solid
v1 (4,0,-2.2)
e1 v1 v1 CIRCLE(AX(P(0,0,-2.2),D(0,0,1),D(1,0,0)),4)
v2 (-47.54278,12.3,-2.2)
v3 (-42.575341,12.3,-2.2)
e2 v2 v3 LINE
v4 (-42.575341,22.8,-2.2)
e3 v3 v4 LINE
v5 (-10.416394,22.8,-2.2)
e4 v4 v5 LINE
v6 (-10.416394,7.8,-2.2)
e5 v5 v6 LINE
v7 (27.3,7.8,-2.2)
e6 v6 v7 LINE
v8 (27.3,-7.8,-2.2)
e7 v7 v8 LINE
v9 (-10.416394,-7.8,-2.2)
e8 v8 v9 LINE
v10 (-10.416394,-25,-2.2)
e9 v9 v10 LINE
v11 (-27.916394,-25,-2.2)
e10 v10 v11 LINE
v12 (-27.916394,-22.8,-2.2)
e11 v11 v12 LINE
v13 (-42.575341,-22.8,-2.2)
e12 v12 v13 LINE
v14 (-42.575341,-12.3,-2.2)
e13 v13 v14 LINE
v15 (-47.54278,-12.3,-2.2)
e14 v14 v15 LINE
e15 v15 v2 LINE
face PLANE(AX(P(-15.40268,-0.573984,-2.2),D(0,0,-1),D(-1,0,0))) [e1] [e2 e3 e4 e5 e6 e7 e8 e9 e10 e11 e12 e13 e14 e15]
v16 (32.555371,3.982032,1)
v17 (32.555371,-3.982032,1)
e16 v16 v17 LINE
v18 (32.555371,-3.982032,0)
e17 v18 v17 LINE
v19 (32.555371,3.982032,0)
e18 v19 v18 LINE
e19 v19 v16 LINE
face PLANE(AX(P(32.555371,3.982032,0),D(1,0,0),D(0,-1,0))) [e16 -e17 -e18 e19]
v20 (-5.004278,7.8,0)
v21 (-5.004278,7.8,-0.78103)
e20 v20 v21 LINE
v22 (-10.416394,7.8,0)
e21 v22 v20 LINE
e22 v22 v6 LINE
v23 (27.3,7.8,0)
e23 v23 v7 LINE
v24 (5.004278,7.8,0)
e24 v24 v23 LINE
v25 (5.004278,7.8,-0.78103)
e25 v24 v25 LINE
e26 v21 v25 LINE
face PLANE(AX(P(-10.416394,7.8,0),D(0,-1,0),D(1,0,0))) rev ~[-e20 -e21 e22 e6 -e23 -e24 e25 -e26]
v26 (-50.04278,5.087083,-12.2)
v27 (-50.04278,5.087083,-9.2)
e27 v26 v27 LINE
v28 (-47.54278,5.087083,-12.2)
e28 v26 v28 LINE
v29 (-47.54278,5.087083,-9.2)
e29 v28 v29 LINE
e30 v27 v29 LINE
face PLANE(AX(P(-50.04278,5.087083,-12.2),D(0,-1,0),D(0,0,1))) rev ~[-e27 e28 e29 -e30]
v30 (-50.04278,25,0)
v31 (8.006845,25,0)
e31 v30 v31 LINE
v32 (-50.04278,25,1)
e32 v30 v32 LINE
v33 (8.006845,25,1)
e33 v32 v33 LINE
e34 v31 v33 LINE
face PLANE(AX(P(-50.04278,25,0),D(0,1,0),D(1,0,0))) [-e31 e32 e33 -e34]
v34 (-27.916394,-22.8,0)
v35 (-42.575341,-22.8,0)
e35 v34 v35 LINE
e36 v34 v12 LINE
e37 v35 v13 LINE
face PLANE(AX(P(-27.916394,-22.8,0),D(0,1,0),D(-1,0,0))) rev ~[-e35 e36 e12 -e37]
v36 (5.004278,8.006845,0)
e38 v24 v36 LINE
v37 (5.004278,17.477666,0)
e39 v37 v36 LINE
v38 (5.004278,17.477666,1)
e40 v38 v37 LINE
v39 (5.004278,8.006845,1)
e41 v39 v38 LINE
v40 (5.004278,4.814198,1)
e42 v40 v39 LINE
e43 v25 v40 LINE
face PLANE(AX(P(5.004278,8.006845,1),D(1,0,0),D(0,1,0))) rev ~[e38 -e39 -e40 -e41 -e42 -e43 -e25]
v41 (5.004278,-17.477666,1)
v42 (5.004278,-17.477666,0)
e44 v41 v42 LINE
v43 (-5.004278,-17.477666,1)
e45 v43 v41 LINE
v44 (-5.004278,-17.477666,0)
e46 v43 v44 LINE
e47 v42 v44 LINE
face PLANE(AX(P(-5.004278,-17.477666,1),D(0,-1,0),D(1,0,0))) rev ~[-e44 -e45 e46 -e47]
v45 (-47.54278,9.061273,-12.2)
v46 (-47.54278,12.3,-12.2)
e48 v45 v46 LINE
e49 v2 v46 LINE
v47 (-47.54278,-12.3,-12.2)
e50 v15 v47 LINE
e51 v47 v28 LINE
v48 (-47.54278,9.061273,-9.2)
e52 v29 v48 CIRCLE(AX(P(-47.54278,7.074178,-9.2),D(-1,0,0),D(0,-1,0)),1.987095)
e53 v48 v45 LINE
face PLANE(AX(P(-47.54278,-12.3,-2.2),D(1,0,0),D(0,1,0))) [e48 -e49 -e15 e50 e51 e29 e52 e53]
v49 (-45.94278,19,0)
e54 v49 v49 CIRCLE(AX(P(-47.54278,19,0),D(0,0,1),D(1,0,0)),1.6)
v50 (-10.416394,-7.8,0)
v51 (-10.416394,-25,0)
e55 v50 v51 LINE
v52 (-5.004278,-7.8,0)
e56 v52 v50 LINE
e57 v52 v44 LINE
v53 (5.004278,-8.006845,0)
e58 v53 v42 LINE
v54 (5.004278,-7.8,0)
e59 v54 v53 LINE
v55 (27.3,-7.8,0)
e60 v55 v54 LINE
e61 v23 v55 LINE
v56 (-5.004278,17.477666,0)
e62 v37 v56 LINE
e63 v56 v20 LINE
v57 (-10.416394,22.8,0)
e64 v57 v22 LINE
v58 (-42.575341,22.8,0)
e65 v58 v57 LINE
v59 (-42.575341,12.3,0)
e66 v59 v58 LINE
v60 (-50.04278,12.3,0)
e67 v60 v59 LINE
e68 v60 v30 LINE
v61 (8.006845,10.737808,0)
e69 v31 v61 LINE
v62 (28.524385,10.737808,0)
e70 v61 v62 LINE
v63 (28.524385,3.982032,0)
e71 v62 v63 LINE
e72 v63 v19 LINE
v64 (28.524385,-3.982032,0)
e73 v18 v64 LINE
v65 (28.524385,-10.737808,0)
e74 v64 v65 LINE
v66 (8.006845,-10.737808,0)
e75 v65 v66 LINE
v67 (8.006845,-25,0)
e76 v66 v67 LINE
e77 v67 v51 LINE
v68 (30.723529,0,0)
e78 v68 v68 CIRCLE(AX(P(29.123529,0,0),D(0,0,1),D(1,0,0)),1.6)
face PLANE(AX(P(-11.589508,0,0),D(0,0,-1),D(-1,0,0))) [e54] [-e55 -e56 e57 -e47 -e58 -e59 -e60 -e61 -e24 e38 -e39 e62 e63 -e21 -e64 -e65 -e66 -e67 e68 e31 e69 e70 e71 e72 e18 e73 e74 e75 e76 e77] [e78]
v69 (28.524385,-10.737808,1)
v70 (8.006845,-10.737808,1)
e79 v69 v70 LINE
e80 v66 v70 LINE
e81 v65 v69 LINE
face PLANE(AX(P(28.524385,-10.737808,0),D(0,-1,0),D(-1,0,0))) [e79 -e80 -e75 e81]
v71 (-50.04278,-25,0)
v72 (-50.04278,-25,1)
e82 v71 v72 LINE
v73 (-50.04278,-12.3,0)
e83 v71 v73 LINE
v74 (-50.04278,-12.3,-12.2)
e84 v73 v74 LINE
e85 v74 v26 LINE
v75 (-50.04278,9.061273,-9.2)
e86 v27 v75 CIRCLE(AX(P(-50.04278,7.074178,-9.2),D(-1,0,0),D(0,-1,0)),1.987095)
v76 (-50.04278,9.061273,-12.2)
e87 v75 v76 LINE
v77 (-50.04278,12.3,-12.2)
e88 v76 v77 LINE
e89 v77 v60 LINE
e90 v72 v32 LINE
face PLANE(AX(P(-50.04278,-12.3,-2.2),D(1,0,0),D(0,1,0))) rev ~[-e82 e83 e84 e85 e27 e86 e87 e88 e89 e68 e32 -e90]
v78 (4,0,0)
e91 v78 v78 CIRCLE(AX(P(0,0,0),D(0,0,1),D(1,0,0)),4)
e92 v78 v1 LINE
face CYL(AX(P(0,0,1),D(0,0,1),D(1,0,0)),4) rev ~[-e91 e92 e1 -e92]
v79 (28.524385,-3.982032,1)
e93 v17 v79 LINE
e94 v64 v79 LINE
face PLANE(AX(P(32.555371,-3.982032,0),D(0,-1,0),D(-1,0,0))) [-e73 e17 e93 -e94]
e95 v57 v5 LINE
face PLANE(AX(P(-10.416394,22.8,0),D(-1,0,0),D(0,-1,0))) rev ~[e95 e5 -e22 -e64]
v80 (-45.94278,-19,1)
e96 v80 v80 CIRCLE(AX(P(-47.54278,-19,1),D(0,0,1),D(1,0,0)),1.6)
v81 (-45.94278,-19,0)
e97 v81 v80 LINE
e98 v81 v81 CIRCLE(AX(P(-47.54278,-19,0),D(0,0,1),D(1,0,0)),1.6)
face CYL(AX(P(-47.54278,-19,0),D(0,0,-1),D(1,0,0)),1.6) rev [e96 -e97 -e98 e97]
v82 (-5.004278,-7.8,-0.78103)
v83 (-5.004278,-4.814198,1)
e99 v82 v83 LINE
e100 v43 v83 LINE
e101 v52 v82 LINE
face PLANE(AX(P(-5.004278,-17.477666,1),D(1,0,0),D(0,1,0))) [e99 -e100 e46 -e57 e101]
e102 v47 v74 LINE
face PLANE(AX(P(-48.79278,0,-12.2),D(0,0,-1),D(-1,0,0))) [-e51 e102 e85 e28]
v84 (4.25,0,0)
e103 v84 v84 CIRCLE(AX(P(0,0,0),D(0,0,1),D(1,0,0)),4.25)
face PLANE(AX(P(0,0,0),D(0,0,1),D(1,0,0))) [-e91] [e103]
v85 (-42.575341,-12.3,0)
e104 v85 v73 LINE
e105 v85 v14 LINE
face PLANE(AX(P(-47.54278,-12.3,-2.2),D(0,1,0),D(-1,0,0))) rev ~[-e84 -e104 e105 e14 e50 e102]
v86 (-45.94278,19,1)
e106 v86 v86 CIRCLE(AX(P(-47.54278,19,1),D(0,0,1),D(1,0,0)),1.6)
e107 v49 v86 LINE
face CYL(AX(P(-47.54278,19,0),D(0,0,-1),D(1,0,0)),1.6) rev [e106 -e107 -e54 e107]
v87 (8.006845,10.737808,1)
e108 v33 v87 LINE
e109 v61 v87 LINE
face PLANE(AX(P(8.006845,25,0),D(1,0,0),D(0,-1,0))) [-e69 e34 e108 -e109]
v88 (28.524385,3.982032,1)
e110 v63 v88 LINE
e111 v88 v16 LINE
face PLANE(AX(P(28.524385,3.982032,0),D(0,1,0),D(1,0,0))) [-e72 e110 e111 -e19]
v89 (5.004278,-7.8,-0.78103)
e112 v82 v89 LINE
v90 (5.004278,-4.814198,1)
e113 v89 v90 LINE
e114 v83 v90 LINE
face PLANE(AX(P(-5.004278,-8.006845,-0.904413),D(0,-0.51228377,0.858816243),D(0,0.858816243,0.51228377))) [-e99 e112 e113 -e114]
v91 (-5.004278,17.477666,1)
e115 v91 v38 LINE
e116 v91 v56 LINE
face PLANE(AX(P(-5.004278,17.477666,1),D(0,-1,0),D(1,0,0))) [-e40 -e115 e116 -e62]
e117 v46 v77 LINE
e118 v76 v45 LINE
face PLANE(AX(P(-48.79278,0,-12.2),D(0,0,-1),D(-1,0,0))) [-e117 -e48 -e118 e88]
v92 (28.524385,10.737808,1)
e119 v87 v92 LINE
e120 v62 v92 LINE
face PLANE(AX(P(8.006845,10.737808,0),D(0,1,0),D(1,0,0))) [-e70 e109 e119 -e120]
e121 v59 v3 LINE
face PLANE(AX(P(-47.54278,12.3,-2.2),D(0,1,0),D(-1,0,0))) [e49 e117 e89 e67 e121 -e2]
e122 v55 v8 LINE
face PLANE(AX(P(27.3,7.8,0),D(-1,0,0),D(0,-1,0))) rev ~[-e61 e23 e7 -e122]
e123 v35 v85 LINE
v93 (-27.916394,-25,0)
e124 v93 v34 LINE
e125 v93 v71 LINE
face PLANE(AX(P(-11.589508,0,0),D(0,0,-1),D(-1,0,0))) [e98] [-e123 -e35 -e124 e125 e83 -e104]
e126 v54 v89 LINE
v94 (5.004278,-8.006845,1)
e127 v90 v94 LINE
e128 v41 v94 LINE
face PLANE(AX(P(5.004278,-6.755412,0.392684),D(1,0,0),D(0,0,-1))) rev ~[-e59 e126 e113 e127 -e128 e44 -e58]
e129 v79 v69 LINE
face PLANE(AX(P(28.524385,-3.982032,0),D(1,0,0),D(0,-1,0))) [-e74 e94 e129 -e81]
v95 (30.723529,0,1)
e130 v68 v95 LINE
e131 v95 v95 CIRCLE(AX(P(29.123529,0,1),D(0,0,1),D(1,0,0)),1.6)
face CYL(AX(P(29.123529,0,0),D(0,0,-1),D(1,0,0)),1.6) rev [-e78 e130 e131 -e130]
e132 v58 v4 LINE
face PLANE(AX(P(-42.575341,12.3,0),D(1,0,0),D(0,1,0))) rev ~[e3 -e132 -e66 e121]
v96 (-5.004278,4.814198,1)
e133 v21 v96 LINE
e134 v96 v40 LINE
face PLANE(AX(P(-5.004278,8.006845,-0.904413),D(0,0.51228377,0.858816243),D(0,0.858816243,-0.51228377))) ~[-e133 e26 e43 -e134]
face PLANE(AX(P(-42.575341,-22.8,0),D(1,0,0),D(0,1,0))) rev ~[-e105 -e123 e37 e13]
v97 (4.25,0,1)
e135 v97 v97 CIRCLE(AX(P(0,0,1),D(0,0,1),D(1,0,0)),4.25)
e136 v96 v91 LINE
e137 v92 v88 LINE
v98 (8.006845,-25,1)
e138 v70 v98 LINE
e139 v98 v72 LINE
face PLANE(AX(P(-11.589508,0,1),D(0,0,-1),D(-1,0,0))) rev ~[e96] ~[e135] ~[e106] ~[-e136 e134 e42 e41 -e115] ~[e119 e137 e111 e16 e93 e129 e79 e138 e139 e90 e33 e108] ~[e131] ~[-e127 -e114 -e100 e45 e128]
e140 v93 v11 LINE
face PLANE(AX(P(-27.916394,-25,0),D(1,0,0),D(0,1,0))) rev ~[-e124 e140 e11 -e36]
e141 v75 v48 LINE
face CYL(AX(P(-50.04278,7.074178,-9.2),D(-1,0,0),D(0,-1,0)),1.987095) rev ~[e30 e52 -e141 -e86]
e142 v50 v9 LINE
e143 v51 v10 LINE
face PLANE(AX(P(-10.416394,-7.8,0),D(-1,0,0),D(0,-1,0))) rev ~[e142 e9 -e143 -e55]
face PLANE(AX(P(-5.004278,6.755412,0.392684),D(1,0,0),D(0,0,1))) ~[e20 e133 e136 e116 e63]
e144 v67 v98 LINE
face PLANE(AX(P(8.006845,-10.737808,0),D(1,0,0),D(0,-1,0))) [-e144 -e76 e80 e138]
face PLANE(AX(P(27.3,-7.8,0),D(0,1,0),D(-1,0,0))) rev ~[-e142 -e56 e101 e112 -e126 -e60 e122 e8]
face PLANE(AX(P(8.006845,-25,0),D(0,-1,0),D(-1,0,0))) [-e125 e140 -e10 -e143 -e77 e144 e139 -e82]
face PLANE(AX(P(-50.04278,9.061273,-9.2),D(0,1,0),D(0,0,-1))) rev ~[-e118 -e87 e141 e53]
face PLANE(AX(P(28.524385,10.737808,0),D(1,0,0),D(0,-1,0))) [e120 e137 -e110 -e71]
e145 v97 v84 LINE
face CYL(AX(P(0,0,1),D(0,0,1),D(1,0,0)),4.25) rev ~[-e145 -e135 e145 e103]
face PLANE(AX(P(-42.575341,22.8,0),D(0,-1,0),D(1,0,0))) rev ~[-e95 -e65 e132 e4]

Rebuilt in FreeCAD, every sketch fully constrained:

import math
import FreeCAD as App
import Part
import Sketcher

V = App.Vector
Q = App.Units.Quantity


def add_polygon(sketch, points):
    """Adds a closed chain of lines whose ends are joined by coincident constraints."""
    first, n = sketch.GeometryCount, len(points)
    for a, b in zip(points, points[1:] + points[:1]):
        sketch.addGeometry(Part.LineSegment(App.Vector(*a, 0), App.Vector(*b, 0)), False)
    for i in range(n):
        sketch.addConstraint(Sketcher.Constraint("Coincident", first + i, 2, first + (i + 1) % n, 1))

doc = App.newDocument("Part")
body = doc.addObject("PartDesign::Body", "Body")

# Sketch on XY plane
sketch1 = body.newObject("Sketcher::SketchObject", "Sketch")
sketch1.AttachmentSupport = (doc.getObject("XY_Plane"), [""])
sketch1.MapMode = "FlatFace"
add_polygon(sketch1, [(8, 25), (-50, 25), (-50, -25), (8, -25), (8, -10.7), (28.5, -10.7), (28.5, -4), (32.6, -4), (32.6, 4), (28.5, 4), (28.5, 10.7), (8, 10.7)])  # lines 0-11
sketch1.addGeometry(Part.Circle(V(-47.5, -19, 0), V(0, 0, 1), 1.6), False)  # 12
sketch1.addGeometry(Part.Circle(V(29.1, 0, 0), V(0, 0, 1), 1.6), False)  # 13
sketch1.addGeometry(Part.Circle(V(-47.5, 19, 0), V(0, 0, 1), 1.6), False)  # 14
sketch1.addConstraint([
    Sketcher.Constraint("Horizontal", 0),
    Sketcher.Constraint("Vertical", 1),
    Sketcher.Constraint("Horizontal", 2),
    Sketcher.Constraint("Vertical", 3),
    Sketcher.Constraint("Horizontal", 4),
    Sketcher.Constraint("Vertical", 5),
    Sketcher.Constraint("Horizontal", 6),
    Sketcher.Constraint("Vertical", 7),
    Sketcher.Constraint("Horizontal", 8),
    Sketcher.Constraint("Vertical", 9),
    Sketcher.Constraint("Horizontal", 10),
    Sketcher.Constraint("Vertical", 11),
    Sketcher.Constraint("Equal", 12, 13),
    Sketcher.Constraint("Equal", 13, 14),
    Sketcher.Constraint("Symmetric", 12, 3, 14, 3, -1),
    Sketcher.Constraint("Symmetric", 5, 2, 8, 2, -1),
    Sketcher.Constraint("Symmetric", 3, 2, 10, 2, -1),
    Sketcher.Constraint("PointOnObject", 13, 3, -1),
    Sketcher.Constraint("Equal", 3, 11),
    Sketcher.Constraint("Diameter", 12, Q("3.2 mm")),
    Sketcher.Constraint("DistanceY", 1, 2, 1, 1, Q("50 mm")),
    Sketcher.Constraint("DistanceY", 12, 3, -1, 1, Q("19 mm")),
    Sketcher.Constraint("DistanceX", 0, 2, 14, 3, Q("2.5 mm")),
    Sketcher.Constraint("DistanceX", 4, 1, 4, 2, Q("20.51754 mm")),
    Sketcher.Constraint("DistanceX", 0, 2, 0, 1, Q("58.049625 mm")),
    Sketcher.Constraint("DistanceX", 6, 1, 6, 2, Q("4.030987 mm")),
    Sketcher.Constraint("DistanceY", 3, 1, 3, 2, Q("14.262192 mm")),
    Sketcher.Constraint("DistanceY", 5, 1, 5, 2, Q("6.755775 mm")),
    Sketcher.Constraint("DistanceX", 12, 3, -1, 1, Q("47.54278 mm")),
    Sketcher.Constraint("DistanceX", -1, 1, 13, 3, Q("29.123529 mm")),
])
pad1 = body.newObject("PartDesign::Pad", "Pad")
pad1.Profile = sketch1
pad1.Length = 1

# Sketch on XY plane
sketch2 = body.newObject("Sketcher::SketchObject", "Sketch001")
sketch2.AttachmentSupport = (doc.getObject("XY_Plane"), [""])
sketch2.MapMode = "FlatFace"
add_polygon(sketch2, [(27.3, 7.8), (27.3, -7.8), (-10.4, -7.8), (-10.4, -25), (-27.9, -25), (-27.9, -22.8), (-42.6, -22.8), (-42.6, -12.3), (-50, -12.3), (-50, 12.3), (-42.6, 12.3), (-42.6, 22.8), (-10.4, 22.8), (-10.4, 7.8)])  # lines 0-13
sketch2.addConstraint([
    Sketcher.Constraint("Vertical", 0),
    Sketcher.Constraint("Horizontal", 1),
    Sketcher.Constraint("Vertical", 2),
    Sketcher.Constraint("Horizontal", 3),
    Sketcher.Constraint("Vertical", 4),
    Sketcher.Constraint("Horizontal", 5),
    Sketcher.Constraint("Vertical", 6),
    Sketcher.Constraint("Horizontal", 7),
    Sketcher.Constraint("Vertical", 8),
    Sketcher.Constraint("Horizontal", 9),
    Sketcher.Constraint("Vertical", 10),
    Sketcher.Constraint("Horizontal", 11),
    Sketcher.Constraint("Vertical", 12),
    Sketcher.Constraint("Horizontal", 13),
    Sketcher.Constraint("Symmetric", 6, 2, 9, 2, -1),
    Sketcher.Constraint("Symmetric", 1, 2, 12, 2, -1),
    Sketcher.Constraint("Equal", 6, 10),
    Sketcher.Constraint("DistanceY", 12, 2, 12, 1, Q("15 mm")),
    Sketcher.Constraint("DistanceX", 3, 2, 3, 1, Q("17.5 mm")),
    Sketcher.Constraint("DistanceY", 0, 2, 0, 1, Q("15.6 mm")),
    Sketcher.Constraint("DistanceY", 2, 2, 2, 1, Q("17.2 mm")),
    Sketcher.Constraint("DistanceY", 6, 1, 6, 2, Q("10.5 mm")),
    Sketcher.Constraint("DistanceX", -1, 1, 0, 2, Q("27.3 mm")),
    Sketcher.Constraint("DistanceX", 7, 2, 7, 1, Q("7.467439 mm")),
    Sketcher.Constraint("DistanceX", 1, 2, 1, 1, Q("37.716394 mm")),
    Sketcher.Constraint("DistanceX", 5, 2, 5, 1, Q("14.658948 mm")),
])
pad2 = body.newObject("PartDesign::Pad", "Pad001")
pad2.Profile = sketch2
pad2.Length = 2.2
pad2.Reversed = True

# Sketch on XY plane
sketch3 = body.newObject("Sketcher::SketchObject", "Sketch002")
sketch3.AttachmentSupport = (doc.getObject("XY_Plane"), [""])
sketch3.MapMode = "FlatFace"
sketch3.AttachmentOffset = App.Placement(V(0, 0, 1), App.Rotation())
sketch3.addGeometry(Part.Circle(V(0, 0, 0), V(0, 0, 1), 4), False)  # 0
add_polygon(sketch3, [(-5, -8), (-5, -17.5), (5, -17.5), (5, -8)])  # lines 1-4
add_polygon(sketch3, [(-5, 17.5), (-5, 8), (5, 8), (5, 17.5)])  # lines 5-8
sketch3.addConstraint([
    Sketcher.Constraint("Vertical", 1),
    Sketcher.Constraint("Horizontal", 2),
    Sketcher.Constraint("Vertical", 3),
    Sketcher.Constraint("Horizontal", 4),
    Sketcher.Constraint("Vertical", 5),
    Sketcher.Constraint("Horizontal", 6),
    Sketcher.Constraint("Vertical", 7),
    Sketcher.Constraint("Horizontal", 8),
    Sketcher.Constraint("Coincident", 0, 3, -1, 1),
    Sketcher.Constraint("Symmetric", 3, 2, 5, 2, -1, 1),
    Sketcher.Constraint("Symmetric", 1, 2, 7, 2, -1, 1),
    Sketcher.Constraint("Vertical", 4, 2, 5, 2),
    Sketcher.Constraint("Diameter", 0, Q("8 mm")),
    Sketcher.Constraint("DistanceY", 1, 2, 1, 1, Q("9.470822 mm")),
    Sketcher.Constraint("DistanceX", 2, 1, 2, 2, Q("10.008556 mm")),
    Sketcher.Constraint("DistanceY", 4, 2, 5, 2, Q("16.01369 mm")),
])
pocket1 = body.newObject("PartDesign::Pocket", "Pocket")
pocket1.Profile = sketch3
pocket1.Type = "ThroughAll"

# Sketch on YZ plane
sketch4 = body.newObject("Sketcher::SketchObject", "Sketch003")
sketch4.AttachmentSupport = (doc.getObject("YZ_Plane"), [""])
sketch4.MapMode = "FlatFace"
sketch4.AttachmentOffset = App.Placement(V(0, 0, -5.004278), App.Rotation())
add_polygon(sketch4, [(-8, -0.9), (-4.8, 1), (-8, 1)])  # lines 0-2
sketch4.addConstraint([
    Sketcher.Constraint("Horizontal", 1),
    Sketcher.Constraint("Vertical", 2),
    Sketcher.Constraint("DistanceY", -1, 1, 0, 2, Q("1 mm")),
    Sketcher.Constraint("DistanceX", 0, 2, -1, 1, Q("4.814198 mm")),
    Sketcher.Constraint("DistanceX", 1, 2, 1, 1, Q("3.192647 mm")),
    Sketcher.Constraint("DistanceY", 2, 2, 2, 1, Q("1.904413 mm")),
])
pocket2 = body.newObject("PartDesign::Pocket", "Pocket001")
pocket2.Profile = sketch4
pocket2.Length = 10.008556
pocket2.Reversed = True
doc.recompute()

mirrored = body.newObject("PartDesign::Mirrored", "Mirrored")
mirrored.Originals = [pocket2]
mirrored.MirrorPlane = (doc.getObject("XZ_Plane"), [""])
body.Tip = mirrored

# Sketch on XY plane
sketch5 = body.newObject("Sketcher::SketchObject", "Sketch004")
sketch5.AttachmentSupport = (doc.getObject("XY_Plane"), [""])
sketch5.MapMode = "FlatFace"
sketch5.AttachmentOffset = App.Placement(V(0, 0, -2.2), App.Rotation())
add_polygon(sketch5, [(-47.5, 12.3), (-47.5, -12.3), (-50, -12.3), (-50, 12.3)])  # lines 0-3
sketch5.addConstraint([
    Sketcher.Constraint("Vertical", 0),
    Sketcher.Constraint("Horizontal", 1),
    Sketcher.Constraint("Vertical", 2),
    Sketcher.Constraint("Horizontal", 3),
    Sketcher.Constraint("DistanceX", 1, 2, 1, 1, Q("2.5 mm")),
    Sketcher.Constraint("DistanceY", 0, 2, 0, 1, Q("24.6 mm")),
    Sketcher.Constraint("DistanceY", 0, 2, -1, 1, Q("12.3 mm")),
    Sketcher.Constraint("DistanceX", 0, 2, -1, 1, Q("47.54278 mm")),
])
pad3 = body.newObject("PartDesign::Pad", "Pad002")
pad3.Profile = sketch5
pad3.Length = 10
pad3.Reversed = True

# Sketch on YZ plane
sketch6 = body.newObject("Sketcher::SketchObject", "Sketch005")
sketch6.AttachmentSupport = (doc.getObject("YZ_Plane"), [""])
sketch6.MapMode = "FlatFace"
sketch6.AttachmentOffset = App.Placement(V(0, 0, -50.04278), App.Rotation())
sketch6.addGeometry([
    Part.LineSegment(V(9.1, -9.2, 0), V(9.1, -12.2, 0)),
    Part.LineSegment(V(9.1, -12.2, 0), V(5.1, -12.2, 0)),
    Part.LineSegment(V(5.1, -12.2, 0), V(5.1, -9.2, 0)),
    Part.ArcOfCircle(Part.Circle(V(7.1, -9.2, 0), V(0, 0, 1), 2), math.radians(0), math.radians(180)),
], False)
sketch6.addConstraint([
    Sketcher.Constraint("Coincident", 0, 2, 1, 1),
    Sketcher.Constraint("Coincident", 1, 2, 2, 1),
    Sketcher.Constraint("Tangent", 2, 2, 3, 2),
    Sketcher.Constraint("Tangent", 3, 1, 0, 1),
    Sketcher.Constraint("Vertical", 0),
    Sketcher.Constraint("Horizontal", 1),
    Sketcher.Constraint("Vertical", 2),
    Sketcher.Constraint("DistanceY", 0, 2, 0, 1, Q("3 mm")),
    Sketcher.Constraint("DistanceY", 3, 3, -1, 1, Q("9.2 mm")),
    Sketcher.Constraint("Radius", 3, Q("1.987095 mm")),
    Sketcher.Constraint("DistanceX", -1, 1, 3, 3, Q("7.074178 mm")),
])
pocket3 = body.newObject("PartDesign::Pocket", "Pocket002")
pocket3.Profile = sketch6
pocket3.Type = "UpToFirst"
pocket3.Reversed = True

# Sketch on XY plane
sketch7 = body.newObject("Sketcher::SketchObject", "Sketch006")
sketch7.AttachmentSupport = (doc.getObject("XY_Plane"), [""])
sketch7.MapMode = "FlatFace"
sketch7.AttachmentOffset = App.Placement(V(0, 0, 1), App.Rotation())
sketch7.addGeometry(Part.Circle(V(0, 0, 0), V(0, 0, 1), 4.2), False)
sketch7.addConstraint([
    Sketcher.Constraint("Coincident", 0, 3, -1, 1),
    Sketcher.Constraint("Diameter", 0, Q("8.5 mm")),
])
pocket4 = body.newObject("PartDesign::Pocket", "Pocket003")
pocket4.Profile = sketch7
pocket4.Length = 1

doc.recompute()
